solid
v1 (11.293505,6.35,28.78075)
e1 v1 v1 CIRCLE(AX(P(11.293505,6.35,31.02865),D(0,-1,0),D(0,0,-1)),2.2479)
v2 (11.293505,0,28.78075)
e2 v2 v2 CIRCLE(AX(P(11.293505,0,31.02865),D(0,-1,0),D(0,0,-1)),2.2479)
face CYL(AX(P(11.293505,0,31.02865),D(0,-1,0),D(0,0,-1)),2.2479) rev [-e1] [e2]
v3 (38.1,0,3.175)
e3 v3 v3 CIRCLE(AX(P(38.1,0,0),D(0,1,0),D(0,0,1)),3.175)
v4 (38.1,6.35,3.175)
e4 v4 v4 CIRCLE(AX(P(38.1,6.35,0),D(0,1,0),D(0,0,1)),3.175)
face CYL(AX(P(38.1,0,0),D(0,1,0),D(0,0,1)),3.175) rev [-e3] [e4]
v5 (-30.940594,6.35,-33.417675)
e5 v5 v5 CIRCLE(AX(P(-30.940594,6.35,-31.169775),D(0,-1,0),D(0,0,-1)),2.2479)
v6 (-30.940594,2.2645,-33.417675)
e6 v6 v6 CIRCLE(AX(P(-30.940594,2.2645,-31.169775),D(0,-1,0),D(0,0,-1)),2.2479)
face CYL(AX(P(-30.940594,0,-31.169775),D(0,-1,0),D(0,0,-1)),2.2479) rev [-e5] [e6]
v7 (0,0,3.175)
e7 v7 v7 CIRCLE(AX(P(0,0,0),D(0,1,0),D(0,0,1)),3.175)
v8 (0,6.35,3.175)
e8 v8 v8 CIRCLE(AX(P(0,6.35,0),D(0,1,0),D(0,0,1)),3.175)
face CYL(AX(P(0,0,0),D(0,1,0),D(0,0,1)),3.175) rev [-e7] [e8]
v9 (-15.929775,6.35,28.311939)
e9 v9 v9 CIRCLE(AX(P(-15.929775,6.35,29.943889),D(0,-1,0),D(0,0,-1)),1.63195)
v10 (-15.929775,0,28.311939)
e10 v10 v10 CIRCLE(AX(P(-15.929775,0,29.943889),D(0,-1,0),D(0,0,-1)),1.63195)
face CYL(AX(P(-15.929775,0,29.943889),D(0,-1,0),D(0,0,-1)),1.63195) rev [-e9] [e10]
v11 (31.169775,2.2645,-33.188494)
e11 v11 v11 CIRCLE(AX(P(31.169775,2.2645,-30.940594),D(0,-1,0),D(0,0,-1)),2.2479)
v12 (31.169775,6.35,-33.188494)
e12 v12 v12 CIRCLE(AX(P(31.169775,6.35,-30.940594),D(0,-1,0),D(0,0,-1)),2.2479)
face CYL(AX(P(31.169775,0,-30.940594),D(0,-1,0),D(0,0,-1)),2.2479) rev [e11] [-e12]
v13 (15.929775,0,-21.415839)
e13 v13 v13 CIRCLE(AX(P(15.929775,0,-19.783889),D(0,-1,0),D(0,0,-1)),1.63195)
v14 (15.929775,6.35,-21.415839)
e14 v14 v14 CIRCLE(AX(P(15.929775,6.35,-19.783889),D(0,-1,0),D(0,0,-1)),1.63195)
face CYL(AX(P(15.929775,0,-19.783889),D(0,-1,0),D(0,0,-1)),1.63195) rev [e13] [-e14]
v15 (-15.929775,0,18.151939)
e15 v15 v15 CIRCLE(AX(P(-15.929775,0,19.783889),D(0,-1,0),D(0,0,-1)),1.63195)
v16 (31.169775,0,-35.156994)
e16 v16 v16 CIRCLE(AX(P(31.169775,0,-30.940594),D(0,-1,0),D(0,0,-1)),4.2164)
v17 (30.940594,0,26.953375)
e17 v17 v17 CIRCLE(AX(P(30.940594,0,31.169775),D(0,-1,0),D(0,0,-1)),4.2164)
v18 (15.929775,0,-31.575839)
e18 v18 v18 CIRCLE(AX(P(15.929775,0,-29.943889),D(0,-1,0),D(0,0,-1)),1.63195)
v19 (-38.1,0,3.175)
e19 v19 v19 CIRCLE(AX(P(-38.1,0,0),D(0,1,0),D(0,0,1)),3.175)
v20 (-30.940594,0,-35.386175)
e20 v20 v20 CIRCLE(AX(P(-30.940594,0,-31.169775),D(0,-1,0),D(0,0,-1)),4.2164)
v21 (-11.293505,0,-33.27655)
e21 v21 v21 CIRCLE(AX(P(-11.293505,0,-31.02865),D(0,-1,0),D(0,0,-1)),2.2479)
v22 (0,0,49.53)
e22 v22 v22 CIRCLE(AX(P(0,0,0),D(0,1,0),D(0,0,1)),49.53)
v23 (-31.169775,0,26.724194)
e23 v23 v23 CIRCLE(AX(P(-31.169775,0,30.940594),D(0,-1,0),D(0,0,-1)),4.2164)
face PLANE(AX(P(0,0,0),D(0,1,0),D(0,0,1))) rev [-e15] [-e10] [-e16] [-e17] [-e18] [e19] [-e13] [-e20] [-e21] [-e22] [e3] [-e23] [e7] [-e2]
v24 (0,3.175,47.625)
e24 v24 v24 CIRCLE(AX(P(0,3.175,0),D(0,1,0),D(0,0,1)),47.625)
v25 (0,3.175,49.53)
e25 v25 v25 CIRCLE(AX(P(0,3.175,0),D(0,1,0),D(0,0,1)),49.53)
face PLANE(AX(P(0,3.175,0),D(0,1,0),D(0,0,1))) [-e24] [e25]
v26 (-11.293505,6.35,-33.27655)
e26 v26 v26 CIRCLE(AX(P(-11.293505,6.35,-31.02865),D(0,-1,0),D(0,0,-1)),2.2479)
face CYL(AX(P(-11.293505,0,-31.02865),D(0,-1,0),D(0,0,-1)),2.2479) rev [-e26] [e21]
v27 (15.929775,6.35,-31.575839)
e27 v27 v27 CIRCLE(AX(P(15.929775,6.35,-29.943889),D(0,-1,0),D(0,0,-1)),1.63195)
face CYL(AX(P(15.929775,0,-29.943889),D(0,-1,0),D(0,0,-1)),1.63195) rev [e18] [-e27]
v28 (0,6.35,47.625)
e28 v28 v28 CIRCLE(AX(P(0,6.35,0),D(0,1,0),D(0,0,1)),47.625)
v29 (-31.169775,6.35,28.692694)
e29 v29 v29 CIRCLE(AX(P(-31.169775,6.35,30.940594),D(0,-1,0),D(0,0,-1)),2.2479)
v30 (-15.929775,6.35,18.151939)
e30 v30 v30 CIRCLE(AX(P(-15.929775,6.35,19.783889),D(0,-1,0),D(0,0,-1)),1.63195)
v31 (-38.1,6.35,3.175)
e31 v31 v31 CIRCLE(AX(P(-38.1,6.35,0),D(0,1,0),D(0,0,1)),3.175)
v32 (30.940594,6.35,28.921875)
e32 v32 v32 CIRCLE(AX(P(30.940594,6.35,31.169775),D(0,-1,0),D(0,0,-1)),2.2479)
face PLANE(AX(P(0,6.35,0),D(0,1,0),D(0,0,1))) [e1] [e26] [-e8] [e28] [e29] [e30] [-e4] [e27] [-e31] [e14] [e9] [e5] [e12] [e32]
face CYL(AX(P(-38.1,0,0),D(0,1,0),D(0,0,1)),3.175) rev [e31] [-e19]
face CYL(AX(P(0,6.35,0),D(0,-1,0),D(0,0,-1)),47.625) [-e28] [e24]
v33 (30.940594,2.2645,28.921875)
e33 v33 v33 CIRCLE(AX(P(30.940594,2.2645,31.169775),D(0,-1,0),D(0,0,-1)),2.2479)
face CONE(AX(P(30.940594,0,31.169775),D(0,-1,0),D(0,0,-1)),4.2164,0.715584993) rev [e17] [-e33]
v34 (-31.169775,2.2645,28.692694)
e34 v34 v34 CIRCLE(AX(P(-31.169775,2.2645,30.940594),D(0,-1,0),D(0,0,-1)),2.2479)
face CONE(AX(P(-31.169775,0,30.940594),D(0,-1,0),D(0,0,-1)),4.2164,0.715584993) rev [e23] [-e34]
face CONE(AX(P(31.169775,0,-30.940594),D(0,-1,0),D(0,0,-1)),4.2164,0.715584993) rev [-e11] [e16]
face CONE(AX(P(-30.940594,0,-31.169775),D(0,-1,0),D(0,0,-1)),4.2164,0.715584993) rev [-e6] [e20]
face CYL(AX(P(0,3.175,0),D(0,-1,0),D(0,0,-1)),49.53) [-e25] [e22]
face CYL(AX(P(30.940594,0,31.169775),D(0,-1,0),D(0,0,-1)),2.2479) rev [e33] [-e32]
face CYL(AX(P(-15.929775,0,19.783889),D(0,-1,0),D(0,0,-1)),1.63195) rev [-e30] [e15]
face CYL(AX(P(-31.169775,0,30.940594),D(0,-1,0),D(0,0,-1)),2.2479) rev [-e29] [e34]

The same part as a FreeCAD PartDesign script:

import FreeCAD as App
import Part
import Sketcher
Q = App.Units.Quantity

doc = App.newDocument("Part")
params = doc.addObject("Spreadsheet::Sheet", "Params")
for row, (alias, value) in enumerate([
    ("sketch1_diameter", "3.9 in"),
    ("pad1_length", "0.125 in"),
    ("sketch2_diameter", "3.75 in"),
    ("pad2_length", "0.125 in"),
    ("sketch3_diameter", "0.25 in"),
    ("sketch4_diameter", "0.25 in"),
    ("sketch5_diameter", "0.177 in"),
    ("hole_diameter", "0.177 in"),
    ("hole_csink_diameter", "0.332 in"),
    ("sketch6_diameter", "0.177 in"),
    ("hole2_diameter", "0.177 in"),
    ("hole3_diameter", "0.1285 in"),
], start=1):
    params.set(f"A{row}", alias)
    params.set(f"B{row}", "=" + value)
    params.setAlias(f"B{row}", alias)

body = doc.addObject("PartDesign::Body", "Body")

# Sketch on XZ plane
sketch1 = body.newObject("Sketcher::SketchObject", "Sketch")
sketch1.AttachmentSupport = (doc.getObject("XZ_Plane"), [""])
sketch1.MapMode = "FlatFace"
sketch1.addGeometry(Part.Circle(App.Vector(0, 0, 0), App.Vector(0, 0, 1), 50), False)
sketch1.addConstraint([
    Sketcher.Constraint("Coincident", 0, 3, -1, 1),
    Sketcher.Constraint("Diameter", 0, Q("3.9 in")),
])
sketch1.setExpression("Constraints[1]", "Params.sketch1_diameter")
pad1 = body.newObject("PartDesign::Pad", "Pad")
pad1.Profile = sketch1
pad1.setExpression("Length", "Params.pad1_length")
pad1.Reversed = True

# Sketch on XZ plane
sketch2 = body.newObject("Sketcher::SketchObject", "Sketch001")
sketch2.AttachmentSupport = (doc.getObject("XZ_Plane"), [""])
sketch2.MapMode = "FlatFace"
sketch2.AttachmentOffset = App.Placement(App.Vector(0, 0, -0.125 * 25.4), App.Rotation())
sketch2.addGeometry(Part.Circle(App.Vector(0, 0, 0), App.Vector(0, 0, 1), 48), False)
sketch2.addConstraint([
    Sketcher.Constraint("Coincident", 0, 3, -1, 1),
    Sketcher.Constraint("Diameter", 0, Q("3.75 in")),
])
sketch2.setExpression("Constraints[1]", "Params.sketch2_diameter")
pad2 = body.newObject("PartDesign::Pad", "Pad001")
pad2.Profile = sketch2
pad2.setExpression("Length", "Params.pad2_length")
pad2.Reversed = True

# Sketch on XZ plane
sketch3 = body.newObject("Sketcher::SketchObject", "Sketch002")
sketch3.AttachmentSupport = (doc.getObject("XZ_Plane"), [""])
sketch3.MapMode = "FlatFace"
sketch3.AttachmentOffset = App.Placement(App.Vector(0, 0, -0.25 * 25.4), App.Rotation())
sketch3.addGeometry([
    Part.Circle(App.Vector(-38.1, 0, 0), App.Vector(0, 0, 1), 3.2),
    Part.Circle(App.Vector(38.1, 0, 0), App.Vector(0, 0, 1), 3.2),
], False)
sketch3.addConstraint([
    Sketcher.Constraint("Equal", 0, 1),
    Sketcher.Constraint("Symmetric", 0, 3, 1, 3, -1, 1),
    Sketcher.Constraint("PointOnObject", 0, 3, -1),
    Sketcher.Constraint("Diameter", 0, Q("0.25 in")),
    Sketcher.Constraint("DistanceX", 0, 3, 1, 3, Q("3 in")),
])
sketch3.setExpression("Constraints[3]", "Params.sketch3_diameter")
pocket1 = body.newObject("PartDesign::Pocket", "Pocket")
pocket1.Profile = sketch3
pocket1.Type = "ThroughAll"
pocket1.Reversed = True

# Sketch on XZ plane
sketch4 = body.newObject("Sketcher::SketchObject", "Sketch003")
sketch4.AttachmentSupport = (doc.getObject("XZ_Plane"), [""])
sketch4.MapMode = "FlatFace"
sketch4.AttachmentOffset = App.Placement(App.Vector(0, 0, -0.25 * 25.4), App.Rotation())
sketch4.addGeometry(Part.Circle(App.Vector(0, 0, 0), App.Vector(0, 0, 1), 3.2), False)
sketch4.addConstraint([
    Sketcher.Constraint("Coincident", 0, 3, -1, 1),
    Sketcher.Constraint("Diameter", 0, Q("0.25 in")),
])
sketch4.setExpression("Constraints[1]", "Params.sketch4_diameter")
pocket2 = body.newObject("PartDesign::Pocket", "Pocket001")
pocket2.Profile = sketch4
pocket2.Type = "ThroughAll"
pocket2.Reversed = True

# Sketch on XZ plane
sketch5 = body.newObject("Sketcher::SketchObject", "Sketch004")
sketch5.AttachmentSupport = (doc.getObject("XZ_Plane"), [""])
sketch5.MapMode = "FlatFace"
sketch5.addGeometry(Part.Circle(App.Vector(-31.2, 30.9, 0), App.Vector(0, 0, 1), 2.2), False)
sketch5.addConstraint([
    Sketcher.Constraint("Diameter", 0, Q("0.177 in")),
    Sketcher.Constraint("DistanceX", 0, 3, -1, 1, Q("31.169775 mm")),
    Sketcher.Constraint("DistanceY", -1, 1, 0, 3, Q("30.940594 mm")),
])
sketch5.setExpression("Constraints[0]", "Params.sketch5_diameter")
doc.recompute()
hole = body.newObject("PartDesign::Hole", "Hole")
hole.Profile = sketch5
hole.ThreadType = "None"
hole.setExpression("Diameter", "Params.hole_diameter")
hole.DepthType = "ThroughAll"
hole.HoleCutType = "Countersink"
hole.setExpression("HoleCutDiameter", "Params.hole_csink_diameter")
hole.HoleCutCountersinkAngle = 82
doc.recompute()

polarpattern = body.newObject("PartDesign::PolarPattern", "PolarPattern")
polarpattern.Originals = [hole]
polarpattern.Axis = (doc.getObject("Y_Axis"), [""])
polarpattern.Angle = 360
polarpattern.Occurrences = 4
body.Tip = polarpattern

# Sketch on XZ plane
sketch6 = body.newObject("Sketcher::SketchObject", "Sketch005")
sketch6.AttachmentSupport = (doc.getObject("XZ_Plane"), [""])
sketch6.MapMode = "FlatFace"
sketch6.addGeometry([
    Part.Circle(App.Vector(-11.3, -31, 0), App.Vector(0, 0, 1), 2.2),
    Part.Circle(App.Vector(11.3, 31, 0), App.Vector(0, 0, 1), 2.2),
], False)
sketch6.addConstraint([
    Sketcher.Constraint("Equal", 0, 1),
    Sketcher.Constraint("Symmetric", 0, 3, 1, 3, -1, 1),
    Sketcher.Constraint("Diameter", 0, Q("0.177 in")),
    Sketcher.Constraint("DistanceY", 0, 3, 1, 3, Q("62.057301 mm")),
    Sketcher.Constraint("DistanceX", 0, 3, 1, 3, Q("22.58701 mm")),
])
sketch6.setExpression("Constraints[2]", "Params.sketch6_diameter")
doc.recompute()
hole2 = body.newObject("PartDesign::Hole", "Hole001")
hole2.Profile = sketch6
hole2.ThreadType = "None"
hole2.setExpression("Diameter", "Params.hole2_diameter")
hole2.DepthType = "ThroughAll"

# Sketch on XZ plane
sketch7 = body.newObject("Sketcher::SketchObject", "Sketch006")
sketch7.AttachmentSupport = (doc.getObject("XZ_Plane"), [""])
sketch7.MapMode = "FlatFace"
sketch7.addGeometry([
    Part.Circle(App.Vector(15.9, -19.8, 0), App.Vector(0, 0, 1), 1.6),
    Part.Circle(App.Vector(-15.9, 19.8, 0), App.Vector(0, 0, 1), 1.6),
    Part.Circle(App.Vector(15.9, -29.9, 0), App.Vector(0, 0, 1), 1.6),
    Part.Circle(App.Vector(-15.9, 29.9, 0), App.Vector(0, 0, 1), 1.6),
], False)
sketch7.addConstraint([
    Sketcher.Constraint("Equal", 0, 1),
    Sketcher.Constraint("Equal", 1, 2),
    Sketcher.Constraint("Equal", 2, 3),
    Sketcher.Constraint("Symmetric", 0, 3, 1, 3, -1, 1),
    Sketcher.Constraint("Symmetric", 2, 3, 3, 3, -1, 1),
    Sketcher.Constraint("Vertical", 0, 3, 2, 3),
    Sketcher.Constraint("Diameter", 0, Q("0.1285 in")),
    Sketcher.Constraint("DistanceY", 2, 3, 0, 3, Q("0.4 in")),
    Sketcher.Constraint("DistanceY", 0, 3, -1, 1, Q("19.783889 mm")),
    Sketcher.Constraint("DistanceX", 1, 3, 0, 3, Q("31.85955 mm")),
])
doc.recompute()
hole3 = body.newObject("PartDesign::Hole", "Hole002")
hole3.Profile = sketch7
hole3.ThreadType = "None"
hole3.setExpression("Diameter", "Params.hole3_diameter")
hole3.DepthType = "ThroughAll"

doc.recompute()
